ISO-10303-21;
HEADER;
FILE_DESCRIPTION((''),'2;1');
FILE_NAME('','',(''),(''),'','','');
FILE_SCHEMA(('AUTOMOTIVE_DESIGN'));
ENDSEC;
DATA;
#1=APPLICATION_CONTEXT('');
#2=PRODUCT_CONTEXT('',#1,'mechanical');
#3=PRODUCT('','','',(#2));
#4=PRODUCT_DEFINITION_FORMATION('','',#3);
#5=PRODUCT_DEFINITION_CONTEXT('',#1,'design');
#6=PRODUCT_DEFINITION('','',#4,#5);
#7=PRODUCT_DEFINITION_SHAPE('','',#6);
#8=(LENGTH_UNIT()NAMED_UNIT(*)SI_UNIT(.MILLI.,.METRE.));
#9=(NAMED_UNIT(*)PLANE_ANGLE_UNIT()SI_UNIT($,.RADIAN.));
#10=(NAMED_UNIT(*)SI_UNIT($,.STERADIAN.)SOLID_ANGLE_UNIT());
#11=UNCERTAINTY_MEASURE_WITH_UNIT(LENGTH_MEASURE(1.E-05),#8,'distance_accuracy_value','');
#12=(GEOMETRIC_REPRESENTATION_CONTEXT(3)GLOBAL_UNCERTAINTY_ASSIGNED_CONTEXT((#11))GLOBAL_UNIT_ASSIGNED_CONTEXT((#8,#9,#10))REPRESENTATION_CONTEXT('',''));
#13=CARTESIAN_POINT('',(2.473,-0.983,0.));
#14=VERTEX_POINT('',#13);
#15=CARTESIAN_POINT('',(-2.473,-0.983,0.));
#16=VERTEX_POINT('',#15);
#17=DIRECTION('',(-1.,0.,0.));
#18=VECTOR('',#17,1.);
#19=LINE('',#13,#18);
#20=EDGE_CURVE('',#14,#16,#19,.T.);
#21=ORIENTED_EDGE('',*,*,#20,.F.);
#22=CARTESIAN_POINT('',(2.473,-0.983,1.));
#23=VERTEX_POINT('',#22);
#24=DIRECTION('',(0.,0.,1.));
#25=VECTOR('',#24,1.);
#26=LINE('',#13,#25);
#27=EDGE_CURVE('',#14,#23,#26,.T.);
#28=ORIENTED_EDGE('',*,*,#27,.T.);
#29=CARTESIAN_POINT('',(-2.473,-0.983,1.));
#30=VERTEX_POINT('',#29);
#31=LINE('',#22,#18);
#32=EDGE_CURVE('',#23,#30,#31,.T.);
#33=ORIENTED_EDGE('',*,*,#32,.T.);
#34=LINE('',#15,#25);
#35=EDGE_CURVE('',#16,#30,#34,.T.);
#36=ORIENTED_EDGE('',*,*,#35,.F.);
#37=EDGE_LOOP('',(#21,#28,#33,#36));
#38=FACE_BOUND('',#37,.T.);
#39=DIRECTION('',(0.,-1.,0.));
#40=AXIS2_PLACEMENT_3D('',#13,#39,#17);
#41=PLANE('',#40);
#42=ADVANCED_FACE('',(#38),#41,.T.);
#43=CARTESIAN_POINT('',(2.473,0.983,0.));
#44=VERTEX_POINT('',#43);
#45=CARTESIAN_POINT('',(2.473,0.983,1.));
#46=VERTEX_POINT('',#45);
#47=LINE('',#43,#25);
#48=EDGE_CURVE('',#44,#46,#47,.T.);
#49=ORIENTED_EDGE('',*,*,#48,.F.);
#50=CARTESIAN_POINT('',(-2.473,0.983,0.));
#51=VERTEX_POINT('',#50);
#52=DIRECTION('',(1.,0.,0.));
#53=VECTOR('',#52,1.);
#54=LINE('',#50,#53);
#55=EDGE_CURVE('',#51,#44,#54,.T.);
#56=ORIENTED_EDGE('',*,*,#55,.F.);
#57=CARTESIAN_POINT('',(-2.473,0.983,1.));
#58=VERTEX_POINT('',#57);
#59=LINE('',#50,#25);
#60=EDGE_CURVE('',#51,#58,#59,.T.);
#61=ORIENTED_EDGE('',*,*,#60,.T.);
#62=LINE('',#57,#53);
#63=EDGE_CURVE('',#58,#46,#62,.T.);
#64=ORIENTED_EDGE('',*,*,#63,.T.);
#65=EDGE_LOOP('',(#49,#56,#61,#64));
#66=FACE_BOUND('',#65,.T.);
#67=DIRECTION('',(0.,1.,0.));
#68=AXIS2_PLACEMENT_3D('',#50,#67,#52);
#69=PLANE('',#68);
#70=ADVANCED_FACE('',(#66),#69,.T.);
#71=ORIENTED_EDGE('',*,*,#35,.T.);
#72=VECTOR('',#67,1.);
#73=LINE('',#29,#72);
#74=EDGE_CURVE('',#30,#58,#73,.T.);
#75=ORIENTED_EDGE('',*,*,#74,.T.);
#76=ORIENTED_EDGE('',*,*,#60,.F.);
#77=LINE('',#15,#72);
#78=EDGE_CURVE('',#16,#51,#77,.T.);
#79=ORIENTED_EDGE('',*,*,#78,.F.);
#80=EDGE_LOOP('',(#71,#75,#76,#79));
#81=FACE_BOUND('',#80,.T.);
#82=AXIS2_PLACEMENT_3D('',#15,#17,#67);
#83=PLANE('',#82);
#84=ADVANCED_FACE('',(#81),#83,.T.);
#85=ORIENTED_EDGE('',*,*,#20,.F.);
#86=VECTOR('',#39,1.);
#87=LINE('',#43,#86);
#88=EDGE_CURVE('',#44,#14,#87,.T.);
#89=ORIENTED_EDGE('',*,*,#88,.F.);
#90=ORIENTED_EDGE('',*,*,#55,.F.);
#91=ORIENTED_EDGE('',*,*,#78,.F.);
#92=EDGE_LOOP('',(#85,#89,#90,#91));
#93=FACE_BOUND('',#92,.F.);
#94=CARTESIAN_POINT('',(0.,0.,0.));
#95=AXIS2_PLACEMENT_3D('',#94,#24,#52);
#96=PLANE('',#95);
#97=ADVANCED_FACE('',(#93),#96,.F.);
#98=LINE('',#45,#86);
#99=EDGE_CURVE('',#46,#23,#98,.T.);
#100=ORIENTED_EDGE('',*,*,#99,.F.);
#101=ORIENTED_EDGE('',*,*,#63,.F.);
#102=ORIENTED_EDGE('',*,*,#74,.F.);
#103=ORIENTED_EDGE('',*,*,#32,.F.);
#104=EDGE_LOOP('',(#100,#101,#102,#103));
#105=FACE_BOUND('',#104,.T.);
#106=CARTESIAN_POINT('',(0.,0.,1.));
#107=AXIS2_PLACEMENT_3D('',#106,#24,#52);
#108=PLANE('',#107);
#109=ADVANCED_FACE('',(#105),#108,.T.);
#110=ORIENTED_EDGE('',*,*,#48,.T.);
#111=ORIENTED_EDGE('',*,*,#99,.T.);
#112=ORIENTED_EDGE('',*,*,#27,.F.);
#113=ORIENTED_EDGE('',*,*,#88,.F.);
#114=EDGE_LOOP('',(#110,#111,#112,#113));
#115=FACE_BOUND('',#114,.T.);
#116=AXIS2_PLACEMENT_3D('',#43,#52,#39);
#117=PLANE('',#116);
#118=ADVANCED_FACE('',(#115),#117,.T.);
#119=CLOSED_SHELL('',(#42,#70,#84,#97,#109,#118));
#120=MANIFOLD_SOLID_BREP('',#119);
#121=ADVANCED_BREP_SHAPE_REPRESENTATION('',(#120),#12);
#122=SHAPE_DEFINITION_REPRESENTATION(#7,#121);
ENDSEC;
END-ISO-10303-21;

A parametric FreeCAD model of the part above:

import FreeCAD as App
import Part
import Sketcher

doc = App.newDocument("Part")
body = doc.addObject("PartDesign::Body", "Body")

# Sketch on XY plane
sketch1 = body.newObject("Sketcher::SketchObject", "Sketch")
sketch1.AttachmentSupport = (doc.getObject("XY_Plane"), [""])
sketch1.MapMode = "FlatFace"
sketch1.addGeometry(Part.LineSegment(App.Vector(2.5, 1, 0), App.Vector(-2.5, 1, 0)), False)
sketch1.addGeometry(Part.LineSegment(App.Vector(-2.5, 1, 0), App.Vector(-2.5, -1, 0)), False)
sketch1.addGeometry(Part.LineSegment(App.Vector(-2.5, -1, 0), App.Vector(2.5, -1, 0)), False)
sketch1.addGeometry(Part.LineSegment(App.Vector(2.5, -1, 0), App.Vector(2.5, 1, 0)), False)
sketch1.addConstraint(Sketcher.Constraint("Coincident", 0, 2, 1, 1))
sketch1.addConstraint(Sketcher.Constraint("Coincident", 1, 2, 2, 1))
sketch1.addConstraint(Sketcher.Constraint("Coincident", 2, 2, 3, 1))
sketch1.addConstraint(Sketcher.Constraint("Coincident", 3, 2, 0, 1))
sketch1.addConstraint(Sketcher.Constraint("Horizontal", 0))
sketch1.addConstraint(Sketcher.Constraint("Vertical", 1))
sketch1.addConstraint(Sketcher.Constraint("Horizontal", 2))
sketch1.addConstraint(Sketcher.Constraint("Vertical", 3))
sketch1.addConstraint(Sketcher.Constraint("Symmetric", 0, 2, 2, 2, -1, 1))
sketch1.addConstraint(Sketcher.Constraint("DistanceX", 0, 2, 0, 1, 4.946))
sketch1.addConstraint(Sketcher.Constraint("DistanceY", 1, 2, 1, 1, 1.966))
pad1 = body.newObject("PartDesign::Pad", "Pad")
pad1.Profile = sketch1
pad1.Length = 1

doc.recompute()
